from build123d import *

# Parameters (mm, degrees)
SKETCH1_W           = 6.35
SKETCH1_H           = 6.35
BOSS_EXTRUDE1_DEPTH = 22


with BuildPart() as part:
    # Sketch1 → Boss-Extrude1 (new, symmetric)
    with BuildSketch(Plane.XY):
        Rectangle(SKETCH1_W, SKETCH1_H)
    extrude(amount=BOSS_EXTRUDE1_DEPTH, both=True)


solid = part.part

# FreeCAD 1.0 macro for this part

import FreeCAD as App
import Part
import Sketcher
Q = App.Units.Quantity


def add_polygon(sketch, points):
    """Adds a closed chain of lines whose ends are joined by coincident constraints."""
    first, n = sketch.GeometryCount, len(points)
    for a, b in zip(points, points[1:] + points[:1]):
        sketch.addGeometry(Part.LineSegment(App.Vector(*a, 0), App.Vector(*b, 0)), False)
    for i in range(n):
        sketch.addConstraint(Sketcher.Constraint("Coincident", first + i, 2, first + (i + 1) % n, 1))

doc = App.newDocument("Part")
body = doc.addObject("PartDesign::Body", "Body")

# Sketch on XY plane
sketch1 = body.newObject("Sketcher::SketchObject", "Sketch")
sketch1.AttachmentSupport = (doc.getObject("XY_Plane"), [""])
sketch1.MapMode = "FlatFace"
add_polygon(sketch1, [(-3, 3), (-3, -3), (3, -3), (3, 3)])  # lines 0-3
sketch1.addConstraint([
    Sketcher.Constraint("Vertical", 0),
    Sketcher.Constraint("Horizontal", 1),
    Sketcher.Constraint("Vertical", 2),
    Sketcher.Constraint("Horizontal", 3),
    Sketcher.Constraint("Symmetric", 0, 2, 2, 2, -1, 1),
    Sketcher.Constraint("Equal", 3, 0),
    Sketcher.Constraint("DistanceX", 1, 1, 1, 2, Q("6.35 mm")),
])
pad1 = body.newObject("PartDesign::Pad", "Pad")
pad1.Profile = sketch1
pad1.Length = 44
pad1.Midplane = True

doc.recompute()
